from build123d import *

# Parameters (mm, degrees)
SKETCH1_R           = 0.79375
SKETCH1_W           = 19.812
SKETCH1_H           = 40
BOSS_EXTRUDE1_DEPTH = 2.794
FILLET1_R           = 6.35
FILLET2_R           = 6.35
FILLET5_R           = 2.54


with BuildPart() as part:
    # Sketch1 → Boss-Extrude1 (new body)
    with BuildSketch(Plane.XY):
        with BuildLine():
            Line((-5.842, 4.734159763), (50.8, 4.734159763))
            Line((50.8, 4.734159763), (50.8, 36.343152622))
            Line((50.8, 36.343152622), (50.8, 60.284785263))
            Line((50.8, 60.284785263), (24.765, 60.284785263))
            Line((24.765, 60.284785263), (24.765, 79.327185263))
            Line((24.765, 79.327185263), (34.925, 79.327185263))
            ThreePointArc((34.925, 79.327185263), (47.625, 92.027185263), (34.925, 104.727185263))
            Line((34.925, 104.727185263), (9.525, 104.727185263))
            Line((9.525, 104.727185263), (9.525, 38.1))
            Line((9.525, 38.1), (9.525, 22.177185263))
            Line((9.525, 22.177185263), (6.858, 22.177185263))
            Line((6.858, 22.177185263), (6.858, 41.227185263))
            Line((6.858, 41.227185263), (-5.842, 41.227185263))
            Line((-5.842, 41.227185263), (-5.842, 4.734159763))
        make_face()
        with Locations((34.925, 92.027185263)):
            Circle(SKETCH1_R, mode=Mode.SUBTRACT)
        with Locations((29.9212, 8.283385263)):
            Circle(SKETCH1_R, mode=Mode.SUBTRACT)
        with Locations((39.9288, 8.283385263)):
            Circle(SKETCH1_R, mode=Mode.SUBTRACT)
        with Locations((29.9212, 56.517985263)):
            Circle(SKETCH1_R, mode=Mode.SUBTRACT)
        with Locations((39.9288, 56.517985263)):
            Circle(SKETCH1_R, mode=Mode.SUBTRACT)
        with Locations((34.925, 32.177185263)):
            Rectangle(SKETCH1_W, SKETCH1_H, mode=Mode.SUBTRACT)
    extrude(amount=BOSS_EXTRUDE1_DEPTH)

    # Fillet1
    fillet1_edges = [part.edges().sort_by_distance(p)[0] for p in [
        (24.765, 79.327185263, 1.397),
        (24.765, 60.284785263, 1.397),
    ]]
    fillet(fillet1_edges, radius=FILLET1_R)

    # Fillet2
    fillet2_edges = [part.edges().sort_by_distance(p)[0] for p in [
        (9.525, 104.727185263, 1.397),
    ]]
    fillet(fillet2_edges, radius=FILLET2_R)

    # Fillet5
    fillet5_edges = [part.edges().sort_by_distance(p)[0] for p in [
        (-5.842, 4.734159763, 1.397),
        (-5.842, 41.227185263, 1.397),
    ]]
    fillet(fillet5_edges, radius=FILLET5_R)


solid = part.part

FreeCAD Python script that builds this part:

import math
import FreeCAD as App
import Part
import Sketcher
Q = App.Units.Quantity


def edges_at(feature, points):
    """Names of the edges that pass closest to the given points."""
    edges = feature.Shape.Edges
    near = lambda p: min(range(len(edges)), key=lambda i: edges[i].distToShape(Part.Vertex(*p))[0])
    return sorted({f"Edge{near(p) + 1}" for p in points})


def add_polygon(sketch, points):
    """Adds a closed chain of lines whose ends are joined by coincident constraints."""
    first, n = sketch.GeometryCount, len(points)
    for a, b in zip(points, points[1:] + points[:1]):
        sketch.addGeometry(Part.LineSegment(App.Vector(*a, 0), App.Vector(*b, 0)), False)
    for i in range(n):
        sketch.addConstraint(Sketcher.Constraint("Coincident", first + i, 2, first + (i + 1) % n, 1))

doc = App.newDocument("Part")
body = doc.addObject("PartDesign::Body", "Body")

sketch1 = doc.addObject("Sketcher::SketchObject", "Sketch")
body.addObject(sketch1)
sketch1.AttachmentSupport = (doc.XY_Plane, [""])
sketch1.MapMode = "FlatFace"
sketch1.addGeometry(Part.LineSegment(App.Vector(-5.8, 4.7, 0), App.Vector(50.8, 4.7, 0)), False)
sketch1.addGeometry(Part.LineSegment(App.Vector(50.8, 4.7, 0), App.Vector(50.8, 60.3, 0)), False)
sketch1.addGeometry(Part.LineSegment(App.Vector(50.8, 60.3, 0), App.Vector(24.8, 60.3, 0)), False)
sketch1.addGeometry(Part.LineSegment(App.Vector(24.8, 60.3, 0), App.Vector(24.8, 79.3, 0)), False)
sketch1.addGeometry(Part.LineSegment(App.Vector(24.8, 79.3, 0), App.Vector(34.9, 79.3, 0)), False)
sketch1.addGeometry(Part.ArcOfCircle(Part.Circle(App.Vector(34.9, 92, 0), App.Vector(0, 0, 1), 12.7), math.radians(-90), math.radians(90)), False)
sketch1.addGeometry(Part.LineSegment(App.Vector(34.9, 104.7, 0), App.Vector(9.5, 104.7, 0)), False)
sketch1.addGeometry(Part.LineSegment(App.Vector(9.5, 104.7, 0), App.Vector(9.5, 22.2, 0)), False)
sketch1.addGeometry(Part.LineSegment(App.Vector(9.5, 22.2, 0), App.Vector(6.9, 22.2, 0)), False)
sketch1.addGeometry(Part.LineSegment(App.Vector(6.9, 22.2, 0), App.Vector(6.9, 41.2, 0)), False)
sketch1.addGeometry(Part.LineSegment(App.Vector(6.9, 41.2, 0), App.Vector(-5.8, 41.2, 0)), False)
sketch1.addGeometry(Part.LineSegment(App.Vector(-5.8, 41.2, 0), App.Vector(-5.8, 4.7, 0)), False)
sketch1.addGeometry(Part.Circle(App.Vector(29.9, 8.3, 0), App.Vector(0, 0, 1), 0.8), False)
sketch1.addGeometry(Part.Circle(App.Vector(39.9, 8.3, 0), App.Vector(0, 0, 1), 0.8), False)
add_polygon(sketch1, [(44.8, 12.2), (25, 12.2), (25, 52.2), (44.8, 52.2)])
sketch1.addGeometry(Part.Circle(App.Vector(29.9, 56.5, 0), App.Vector(0, 0, 1), 0.8), False)
sketch1.addGeometry(Part.Circle(App.Vector(39.9, 56.5, 0), App.Vector(0, 0, 1), 0.8), False)
sketch1.addGeometry(Part.Circle(App.Vector(34.9, 92, 0), App.Vector(0, 0, 1), 0.8), False)
sketch1.addConstraint(Sketcher.Constraint("Coincident", 0, 2, 1, 1))
sketch1.addConstraint(Sketcher.Constraint("Coincident", 1, 2, 2, 1))
sketch1.addConstraint(Sketcher.Constraint("Coincident", 2, 2, 3, 1))
sketch1.addConstraint(Sketcher.Constraint("Coincident", 3, 2, 4, 1))
sketch1.addConstraint(Sketcher.Constraint("Tangent", 4, 2, 5, 1))
sketch1.addConstraint(Sketcher.Constraint("Tangent", 5, 2, 6, 1))
sketch1.addConstraint(Sketcher.Constraint("Coincident", 6, 2, 7, 1))
sketch1.addConstraint(Sketcher.Constraint("Coincident", 7, 2, 8, 1))
sketch1.addConstraint(Sketcher.Constraint("Coincident", 8, 2, 9, 1))
sketch1.addConstraint(Sketcher.Constraint("Coincident", 9, 2, 10, 1))
sketch1.addConstraint(Sketcher.Constraint("Coincident", 10, 2, 11, 1))
sketch1.addConstraint(Sketcher.Constraint("Coincident", 11, 2, 0, 1))
sketch1.addConstraint(Sketcher.Constraint("Horizontal", 0))
sketch1.addConstraint(Sketcher.Constraint("Vertical", 1))
sketch1.addConstraint(Sketcher.Constraint("Horizontal", 2))
sketch1.addConstraint(Sketcher.Constraint("Vertical", 3))
sketch1.addConstraint(Sketcher.Constraint("Horizontal", 4))
sketch1.addConstraint(Sketcher.Constraint("Horizontal", 6))
sketch1.addConstraint(Sketcher.Constraint("Vertical", 7))
sketch1.addConstraint(Sketcher.Constraint("Horizontal", 8))
sketch1.addConstraint(Sketcher.Constraint("Vertical", 9))
sketch1.addConstraint(Sketcher.Constraint("Horizontal", 10))
sketch1.addConstraint(Sketcher.Constraint("Vertical", 11))
sketch1.addConstraint(Sketcher.Constraint("Horizontal", 14))
sketch1.addConstraint(Sketcher.Constraint("Vertical", 15))
sketch1.addConstraint(Sketcher.Constraint("Horizontal", 16))
sketch1.addConstraint(Sketcher.Constraint("Vertical", 17))
sketch1.addConstraint(Sketcher.Constraint("Coincident", 20, 3, 5, 3))
sketch1.addConstraint(Sketcher.Constraint("Equal", 12, 13))
sketch1.addConstraint(Sketcher.Constraint("Equal", 13, 18))
sketch1.addConstraint(Sketcher.Constraint("Equal", 18, 19))
sketch1.addConstraint(Sketcher.Constraint("Equal", 19, 20))
sketch1.addConstraint(Sketcher.Constraint("Horizontal", 12, 3, 13, 3))
sketch1.addConstraint(Sketcher.Constraint("Horizontal", 18, 3, 19, 3))
sketch1.addConstraint(Sketcher.Constraint("Vertical", 12, 3, 18, 3))
sketch1.addConstraint(Sketcher.Constraint("Vertical", 13, 3, 19, 3))
sketch1.addConstraint(Sketcher.Constraint("Radius", 5, Q("0.5 in")))
sketch1.addConstraint(Sketcher.Constraint("DistanceX", 6, 2, 6, 1, Q("1 in")))
sketch1.addConstraint(Sketcher.Constraint("Diameter", 12, Q("0.0625 in")))
sketch1.addConstraint(Sketcher.Constraint("DistanceX", 4, 1, 4, 2, Q("0.4 in")))
sketch1.addConstraint(Sketcher.Constraint("DistanceX", 10, 2, 10, 1, Q("0.5 in")))
sketch1.addConstraint(Sketcher.Constraint("DistanceX", -1, 1, 0, 2, Q("2 in")))
sketch1.addConstraint(Sketcher.Constraint("DistanceX", 0, 1, 0, 2, Q("2.23 in")))
sketch1.addConstraint(Sketcher.Constraint("DistanceX", 14, 2, 14, 1, Q("0.78 in")))
sketch1.addConstraint(Sketcher.Constraint("DistanceY", 7, 2, 7, 1, Q("3.25 in")))
sketch1.addConstraint(Sketcher.Constraint("DistanceY", 9, 1, 9, 2, Q("0.75 in")))
sketch1.addConstraint(Sketcher.Constraint("DistanceX", 2, 2, 2, 1, Q("1.025 in")))
sketch1.addConstraint(Sketcher.Constraint("DistanceX", 7, 2, 14, 2, Q("0.61 in")))
sketch1.addConstraint(Sketcher.Constraint("DistanceX", -1, 1, 12, 3, Q("1.178 in")))
sketch1.addConstraint(Sketcher.Constraint("DistanceX", -1, 1, 13, 3, Q("1.572 in")))
sketch1.addConstraint(Sketcher.Constraint("DistanceY", 12, 3, 5, 3, Q("3.297 in")))
sketch1.addConstraint(Sketcher.Constraint("DistanceY", 18, 3, 5, 3, Q("1.398 in")))
sketch1.addConstraint(Sketcher.Constraint("DistanceY", 3, 1, 3, 2, Q("19.0424 mm")))
sketch1.addConstraint(Sketcher.Constraint("DistanceY", 15, 1, 15, 2, Q("40 mm")))
sketch1.addConstraint(Sketcher.Constraint("DistanceY", 12, 3, 14, 2, Q("3.8938 mm")))
sketch1.addConstraint(Sketcher.Constraint("DistanceY", 1, 1, 1, 2, Q("55.550626 mm")))
sketch1.addConstraint(Sketcher.Constraint("DistanceY", -1, 1, 0, 2, Q("4.73416 mm")))
pad1 = doc.addObject("PartDesign::Pad", "Pad")
body.addObject(pad1)
pad1.Profile = sketch1
pad1.Length = Q("0.11 in")
doc.recompute()

fillet = doc.addObject("PartDesign::Fillet", "Fillet")
body.addObject(fillet)
fillet.Base = (pad1, edges_at(pad1, [(24.765, 79.327, 1.397), (24.765, 60.285, 1.397)]))
fillet.Radius = Q("0.25 in")
doc.recompute()

fillet2 = doc.addObject("PartDesign::Fillet", "Fillet001")
body.addObject(fillet2)
fillet2.Base = (fillet, edges_at(fillet, [(9.525, 104.727, 1.397)]))
fillet2.Radius = Q("0.25 in")
doc.recompute()

fillet3 = doc.addObject("PartDesign::Fillet", "Fillet002")
body.addObject(fillet3)
fillet3.Base = (fillet2, edges_at(fillet2, [(-5.842, 4.734, 1.397), (-5.842, 41.227, 1.397)]))
fillet3.Radius = Q("0.1 in")

doc.recompute()
